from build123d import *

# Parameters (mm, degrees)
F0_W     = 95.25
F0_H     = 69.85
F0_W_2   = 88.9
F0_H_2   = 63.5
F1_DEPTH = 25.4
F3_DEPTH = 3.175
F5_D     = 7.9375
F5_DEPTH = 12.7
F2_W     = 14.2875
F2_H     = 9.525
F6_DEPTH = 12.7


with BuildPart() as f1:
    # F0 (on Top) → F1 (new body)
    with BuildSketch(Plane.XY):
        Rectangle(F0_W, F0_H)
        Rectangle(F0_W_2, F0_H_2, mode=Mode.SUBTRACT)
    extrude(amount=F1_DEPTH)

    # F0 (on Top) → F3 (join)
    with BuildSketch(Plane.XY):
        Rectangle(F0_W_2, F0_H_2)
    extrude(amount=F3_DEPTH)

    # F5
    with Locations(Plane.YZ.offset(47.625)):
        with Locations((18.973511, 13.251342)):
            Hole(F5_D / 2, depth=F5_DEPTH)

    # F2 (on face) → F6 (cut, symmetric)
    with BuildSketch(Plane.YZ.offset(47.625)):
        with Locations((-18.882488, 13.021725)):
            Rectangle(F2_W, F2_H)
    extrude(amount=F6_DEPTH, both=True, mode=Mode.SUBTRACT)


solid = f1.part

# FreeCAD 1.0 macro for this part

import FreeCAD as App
import Part
import Sketcher
from FreeCAD import Vector
Q = App.Units.Quantity

doc = App.newDocument("Part")
body = doc.addObject("PartDesign::Body", "Body")

# Sketch on XY plane
sketch1 = body.newObject("Sketcher::SketchObject", "Sketch")
sketch1.AttachmentSupport = (doc.getObject("XY_Plane"), [""])
sketch1.MapMode = "FlatFace"
sketch1.addGeometry([
    Part.LineSegment(Vector(-47.625, 34.925, 0), Vector(-47.625, -34.925, 0)),  # 0
    Part.LineSegment(Vector(-47.625, -34.925, 0), Vector(47.625, -34.925, 0)),  # 1
    Part.LineSegment(Vector(47.625, -34.925, 0), Vector(47.625, 34.925, 0)),  # 2
    Part.LineSegment(Vector(47.625, 34.925, 0), Vector(-47.625, 34.925, 0)),  # 3
    Part.LineSegment(Vector(44.45, -31.75, 0), Vector(-44.45, -31.75, 0)),  # 4
    Part.LineSegment(Vector(-44.45, -31.75, 0), Vector(-44.45, 31.75, 0)),  # 5
    Part.LineSegment(Vector(-44.45, 31.75, 0), Vector(44.45, 31.75, 0)),  # 6
    Part.LineSegment(Vector(44.45, 31.75, 0), Vector(44.45, -31.75, 0)),  # 7
], False)
sketch1.addConstraint([
    Sketcher.Constraint("Coincident", 0, 2, 1, 1),
    Sketcher.Constraint("Coincident", 1, 2, 2, 1),
    Sketcher.Constraint("Coincident", 2, 2, 3, 1),
    Sketcher.Constraint("Coincident", 3, 2, 0, 1),
    Sketcher.Constraint("Coincident", 4, 2, 5, 1),
    Sketcher.Constraint("Coincident", 5, 2, 6, 1),
    Sketcher.Constraint("Coincident", 6, 2, 7, 1),
    Sketcher.Constraint("Coincident", 7, 2, 4, 1),
    Sketcher.Constraint("Vertical", 0),
    Sketcher.Constraint("Horizontal", 1),
    Sketcher.Constraint("Vertical", 2),
    Sketcher.Constraint("Horizontal", 3),
    Sketcher.Constraint("Horizontal", 4),
    Sketcher.Constraint("Vertical", 5),
    Sketcher.Constraint("Horizontal", 6),
    Sketcher.Constraint("Vertical", 7),
    Sketcher.Constraint("Symmetric", 0, 2, 2, 2, -1, 1),
    Sketcher.Constraint("Symmetric", 4, 2, 6, 2, -1, 1),
    Sketcher.Constraint("DistanceX", 4, 2, 4, 1, Q("3.5 in")),
    Sketcher.Constraint("DistanceY", 5, 1, 5, 2, Q("2.5 in")),
    Sketcher.Constraint("DistanceX", 1, 1, 1, 2, Q("3.75 in")),
    Sketcher.Constraint("DistanceY", 0, 2, 0, 1, Q("2.75 in")),
])
pad1 = body.newObject("PartDesign::Pad", "Pad")
pad1.Profile = sketch1
pad1.Length = Q("1 in")

# Sketch on XY plane
sketch2 = body.newObject("Sketcher::SketchObject", "Sketch001")
sketch2.AttachmentSupport = (doc.getObject("XY_Plane"), [""])
sketch2.MapMode = "FlatFace"
sketch2.addGeometry([
    Part.LineSegment(Vector(-44.45, 31.75, 0), Vector(-44.45, -31.75, 0)),
    Part.LineSegment(Vector(-44.45, -31.75, 0), Vector(44.45, -31.75, 0)),
    Part.LineSegment(Vector(44.45, -31.75, 0), Vector(44.45, 31.75, 0)),
    Part.LineSegment(Vector(44.45, 31.75, 0), Vector(-44.45, 31.75, 0)),
], False)
sketch2.addConstraint([
    Sketcher.Constraint("Coincident", 0, 2, 1, 1),
    Sketcher.Constraint("Coincident", 1, 2, 2, 1),
    Sketcher.Constraint("Coincident", 2, 2, 3, 1),
    Sketcher.Constraint("Coincident", 3, 2, 0, 1),
    Sketcher.Constraint("Vertical", 0),
    Sketcher.Constraint("Horizontal", 1),
    Sketcher.Constraint("Vertical", 2),
    Sketcher.Constraint("Horizontal", 3),
    Sketcher.Constraint("Symmetric", 0, 2, 2, 2, -1, 1),
    Sketcher.Constraint("DistanceX", 1, 1, 1, 2, Q("3.5 in")),
    Sketcher.Constraint("DistanceY", 0, 2, 0, 1, Q("2.5 in")),
])
pad2 = body.newObject("PartDesign::Pad", "Pad001")
pad2.Profile = sketch2
pad2.Length = Q("0.125 in")

# Sketch on YZ plane
sketch3 = body.newObject("Sketcher::SketchObject", "Sketch002")
sketch3.AttachmentSupport = (doc.getObject("YZ_Plane"), [""])
sketch3.MapMode = "FlatFace"
sketch3.AttachmentOffset = App.Placement(Vector(0, 0, 1.875 * 25.4), App.Rotation())
sketch3.addGeometry(Part.Circle(Vector(18.973511, 13.251342, 0), Vector(0, 0, 1), 3.96875), False)
sketch3.addConstraint([
    Sketcher.Constraint("Diameter", 0, Q("0.3125 in")),
    Sketcher.Constraint("DistanceX", -1, 1, 0, 3, Q("18.973511 mm")),
    Sketcher.Constraint("DistanceY", -1, 1, 0, 3, Q("13.251342 mm")),
])
doc.recompute()
hole = body.newObject("PartDesign::Hole", "Hole")
hole.Profile = sketch3
hole.ThreadType = "None"
hole.Diameter = Q("0.3125 in")
hole.DepthType = "Dimension"
hole.Depth = Q("0.5 in")
hole.DrillPoint = "Flat"

# Sketch on YZ plane
sketch4 = body.newObject("Sketcher::SketchObject", "Sketch003")
sketch4.AttachmentSupport = (doc.getObject("YZ_Plane"), [""])
sketch4.MapMode = "FlatFace"
sketch4.AttachmentOffset = App.Placement(Vector(0, 0, 1.875 * 25.4), App.Rotation())
sketch4.addGeometry([
    Part.LineSegment(Vector(-26.026238, 17.784225, 0), Vector(-26.026238, 8.259225, 0)),
    Part.LineSegment(Vector(-26.026238, 8.259225, 0), Vector(-11.738738, 8.259225, 0)),
    Part.LineSegment(Vector(-11.738738, 8.259225, 0), Vector(-11.738738, 17.784225, 0)),
    Part.LineSegment(Vector(-11.738738, 17.784225, 0), Vector(-26.026238, 17.784225, 0)),
], False)
sketch4.addConstraint([
    Sketcher.Constraint("Coincident", 0, 2, 1, 1),
    Sketcher.Constraint("Coincident", 1, 2, 2, 1),
    Sketcher.Constraint("Coincident", 2, 2, 3, 1),
    Sketcher.Constraint("Coincident", 3, 2, 0, 1),
    Sketcher.Constraint("Vertical", 0),
    Sketcher.Constraint("Horizontal", 1),
    Sketcher.Constraint("Vertical", 2),
    Sketcher.Constraint("Horizontal", 3),
    Sketcher.Constraint("DistanceX", 1, 1, 1, 2, Q("0.5625 in")),
    Sketcher.Constraint("DistanceY", 0, 2, 0, 1, Q("0.375 in")),
    Sketcher.Constraint("DistanceX", 0, 2, -1, 1, Q("26.026238 mm")),
    Sketcher.Constraint("DistanceY", -1, 1, 0, 2, Q("8.259225 mm")),
])
pocket1 = body.newObject("PartDesign::Pocket", "Pocket")
pocket1.Profile = sketch4
pocket1.Length = Q("1 in")
pocket1.Midplane = True

doc.recompute()
